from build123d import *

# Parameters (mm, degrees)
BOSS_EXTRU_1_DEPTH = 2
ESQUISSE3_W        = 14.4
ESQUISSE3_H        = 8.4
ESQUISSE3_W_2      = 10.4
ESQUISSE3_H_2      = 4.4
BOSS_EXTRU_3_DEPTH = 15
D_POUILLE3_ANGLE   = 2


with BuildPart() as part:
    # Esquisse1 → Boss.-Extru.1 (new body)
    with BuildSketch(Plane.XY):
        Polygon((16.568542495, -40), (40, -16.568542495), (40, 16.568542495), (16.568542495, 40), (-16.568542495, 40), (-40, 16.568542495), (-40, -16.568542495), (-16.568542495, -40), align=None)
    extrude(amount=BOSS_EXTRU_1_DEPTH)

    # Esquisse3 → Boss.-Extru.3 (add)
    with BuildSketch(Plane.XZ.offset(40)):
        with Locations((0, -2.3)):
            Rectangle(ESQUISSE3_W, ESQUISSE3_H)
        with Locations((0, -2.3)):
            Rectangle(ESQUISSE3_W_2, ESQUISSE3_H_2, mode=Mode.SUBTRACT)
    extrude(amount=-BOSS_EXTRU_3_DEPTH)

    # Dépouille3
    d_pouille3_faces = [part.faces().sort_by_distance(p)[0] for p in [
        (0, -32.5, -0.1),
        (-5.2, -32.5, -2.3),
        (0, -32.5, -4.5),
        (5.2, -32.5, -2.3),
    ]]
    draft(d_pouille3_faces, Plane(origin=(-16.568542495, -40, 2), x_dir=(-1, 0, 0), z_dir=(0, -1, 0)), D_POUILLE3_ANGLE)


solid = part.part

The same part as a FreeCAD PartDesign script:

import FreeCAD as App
import Part
import Sketcher
from FreeCAD import Vector
Q = App.Units.Quantity


def faces_at(feature, points):
    """Names of the faces that lie closest to the given points."""
    faces = feature.Shape.Faces
    near = lambda p: min(range(len(faces)), key=lambda i: faces[i].distToShape(Part.Vertex(*p))[0])
    return sorted({f"Face{near(p) + 1}" for p in points})

doc = App.newDocument("Part")
body = doc.addObject("PartDesign::Body", "Body")

# Sketch on XY plane
sketch1 = body.newObject("Sketcher::SketchObject", "Sketch")
sketch1.AttachmentSupport = (doc.getObject("XY_Plane"), [""])
sketch1.MapMode = "FlatFace"
sketch1.addGeometry(Part.LineSegment(Vector(16.568542, -40, 0), Vector(40, -16.568542, 0)), False)
sketch1.addGeometry(Part.LineSegment(Vector(40, -16.568542, 0), Vector(40, 16.568542, 0)), False)
sketch1.addGeometry(Part.LineSegment(Vector(40, 16.568542, 0), Vector(16.568542, 40, 0)), False)
sketch1.addGeometry(Part.LineSegment(Vector(16.568542, 40, 0), Vector(-16.568542, 40, 0)), False)
sketch1.addGeometry(Part.LineSegment(Vector(-16.568542, 40, 0), Vector(-40, 16.568542, 0)), False)
sketch1.addGeometry(Part.LineSegment(Vector(-40, 16.568542, 0), Vector(-40, -16.568542, 0)), False)
sketch1.addGeometry(Part.LineSegment(Vector(-40, -16.568542, 0), Vector(-16.568542, -40, 0)), False)
sketch1.addGeometry(Part.LineSegment(Vector(-16.568542, -40, 0), Vector(16.568542, -40, 0)), False)
sketch1.addConstraint(Sketcher.Constraint("Coincident", 0, 2, 1, 1))
sketch1.addConstraint(Sketcher.Constraint("Coincident", 1, 2, 2, 1))
sketch1.addConstraint(Sketcher.Constraint("Coincident", 2, 2, 3, 1))
sketch1.addConstraint(Sketcher.Constraint("Coincident", 3, 2, 4, 1))
sketch1.addConstraint(Sketcher.Constraint("Coincident", 4, 2, 5, 1))
sketch1.addConstraint(Sketcher.Constraint("Coincident", 5, 2, 6, 1))
sketch1.addConstraint(Sketcher.Constraint("Coincident", 6, 2, 7, 1))
sketch1.addConstraint(Sketcher.Constraint("Coincident", 7, 2, 0, 1))
sketch1.addConstraint(Sketcher.Constraint("Vertical", 1))
sketch1.addConstraint(Sketcher.Constraint("Horizontal", 3))
sketch1.addConstraint(Sketcher.Constraint("Vertical", 5))
sketch1.addConstraint(Sketcher.Constraint("Horizontal", 7))
sketch1.addConstraint(Sketcher.Constraint("Symmetric", 0, 2, 4, 2, -1, 1))
sketch1.addConstraint(Sketcher.Constraint("Symmetric", 2, 2, 6, 2, -1, 1))
sketch1.addConstraint(Sketcher.Constraint("Perpendicular", 0, 2))
sketch1.addConstraint(Sketcher.Constraint("Perpendicular", 2, 4))
sketch1.addConstraint(Sketcher.Constraint("Perpendicular", 4, 6))
sketch1.addConstraint(Sketcher.Constraint("Horizontal", 1, 2, 4, 2))
sketch1.addConstraint(Sketcher.Constraint("Vertical", 3, 2, 6, 2))
sketch1.addConstraint(Sketcher.Constraint("Equal", 7, 1))
sketch1.addConstraint(Sketcher.Constraint("DistanceX", -1, 1, 0, 2, Q("40 mm")))
sketch1.addConstraint(Sketcher.Constraint("DistanceX", 3, 2, 3, 1, Q("33.137085 mm")))
pad1 = body.newObject("PartDesign::Pad", "Pad")
pad1.Profile = sketch1
pad1.Length = 2

# Sketch on XZ plane
sketch2 = body.newObject("Sketcher::SketchObject", "Sketch001")
sketch2.AttachmentSupport = (doc.getObject("XZ_Plane"), [""])
sketch2.MapMode = "FlatFace"
sketch2.AttachmentOffset = App.Placement(Vector(0, 0, 40), App.Rotation())
sketch2.addGeometry(Part.LineSegment(Vector(-7.2, 1.9, 0), Vector(-7.2, -6.5, 0)), False)
sketch2.addGeometry(Part.LineSegment(Vector(-7.2, -6.5, 0), Vector(7.2, -6.5, 0)), False)
sketch2.addGeometry(Part.LineSegment(Vector(7.2, -6.5, 0), Vector(7.2, 1.9, 0)), False)
sketch2.addGeometry(Part.LineSegment(Vector(7.2, 1.9, 0), Vector(-7.2, 1.9, 0)), False)
sketch2.addGeometry(Part.LineSegment(Vector(5.2, -4.5, 0), Vector(-5.2, -4.5, 0)), False)
sketch2.addGeometry(Part.LineSegment(Vector(-5.2, -4.5, 0), Vector(-5.2, -0.1, 0)), False)
sketch2.addGeometry(Part.LineSegment(Vector(-5.2, -0.1, 0), Vector(5.2, -0.1, 0)), False)
sketch2.addGeometry(Part.LineSegment(Vector(5.2, -0.1, 0), Vector(5.2, -4.5, 0)), False)
sketch2.addConstraint(Sketcher.Constraint("Coincident", 0, 2, 1, 1))
sketch2.addConstraint(Sketcher.Constraint("Coincident", 1, 2, 2, 1))
sketch2.addConstraint(Sketcher.Constraint("Coincident", 2, 2, 3, 1))
sketch2.addConstraint(Sketcher.Constraint("Coincident", 3, 2, 0, 1))
sketch2.addConstraint(Sketcher.Constraint("Coincident", 4, 2, 5, 1))
sketch2.addConstraint(Sketcher.Constraint("Coincident", 5, 2, 6, 1))
sketch2.addConstraint(Sketcher.Constraint("Coincident", 6, 2, 7, 1))
sketch2.addConstraint(Sketcher.Constraint("Coincident", 7, 2, 4, 1))
sketch2.addConstraint(Sketcher.Constraint("Vertical", 0))
sketch2.addConstraint(Sketcher.Constraint("Horizontal", 1))
sketch2.addConstraint(Sketcher.Constraint("Vertical", 2))
sketch2.addConstraint(Sketcher.Constraint("Horizontal", 3))
sketch2.addConstraint(Sketcher.Constraint("Horizontal", 4))
sketch2.addConstraint(Sketcher.Constraint("Vertical", 5))
sketch2.addConstraint(Sketcher.Constraint("Horizontal", 6))
sketch2.addConstraint(Sketcher.Constraint("Vertical", 7))
sketch2.addConstraint(Sketcher.Constraint("DistanceX", 1, 1, 1, 2, Q("14.4 mm")))
sketch2.addConstraint(Sketcher.Constraint("DistanceX", 4, 2, 4, 1, Q("10.4 mm")))
sketch2.addConstraint(Sketcher.Constraint("DistanceY", 0, 2, 0, 1, Q("8.4 mm")))
sketch2.addConstraint(Sketcher.Constraint("DistanceY", 5, 1, 5, 2, Q("4.4 mm")))
sketch2.addConstraint(Sketcher.Constraint("DistanceX", 0, 2, 4, 2, Q("2 mm")))
sketch2.addConstraint(Sketcher.Constraint("DistanceY", 0, 2, 4, 2, Q("2 mm")))
sketch2.addConstraint(Sketcher.Constraint("DistanceX", 0, 2, -1, 1, Q("7.2 mm")))
sketch2.addConstraint(Sketcher.Constraint("DistanceY", 0, 2, -1, 1, Q("6.5 mm")))
pad2 = body.newObject("PartDesign::Pad", "Pad001")
pad2.Profile = sketch2
pad2.Length = 15
pad2.Reversed = True
doc.recompute()

datumplane = body.newObject("PartDesign::Plane", "DatumPlane")
datumplane.AttachmentSupport = (doc.getObject("XZ_Plane"), [""])
datumplane.MapMode = "FlatFace"
datumplane.AttachmentOffset = App.Placement(Vector(0, 0, 40), App.Rotation())
draft = body.newObject("PartDesign::Draft", "Draft")
draft.Base = (pad2, faces_at(pad2, [
    (0, -32.5, -0.1),
    (-5.2, -32.5, -2.3),
    (0, -32.5, -4.5),
    (5.2, -32.5, -2.3),
]))
draft.NeutralPlane = (datumplane, [""])
draft.Angle = 2
draft.Reversed = False

doc.recompute()
